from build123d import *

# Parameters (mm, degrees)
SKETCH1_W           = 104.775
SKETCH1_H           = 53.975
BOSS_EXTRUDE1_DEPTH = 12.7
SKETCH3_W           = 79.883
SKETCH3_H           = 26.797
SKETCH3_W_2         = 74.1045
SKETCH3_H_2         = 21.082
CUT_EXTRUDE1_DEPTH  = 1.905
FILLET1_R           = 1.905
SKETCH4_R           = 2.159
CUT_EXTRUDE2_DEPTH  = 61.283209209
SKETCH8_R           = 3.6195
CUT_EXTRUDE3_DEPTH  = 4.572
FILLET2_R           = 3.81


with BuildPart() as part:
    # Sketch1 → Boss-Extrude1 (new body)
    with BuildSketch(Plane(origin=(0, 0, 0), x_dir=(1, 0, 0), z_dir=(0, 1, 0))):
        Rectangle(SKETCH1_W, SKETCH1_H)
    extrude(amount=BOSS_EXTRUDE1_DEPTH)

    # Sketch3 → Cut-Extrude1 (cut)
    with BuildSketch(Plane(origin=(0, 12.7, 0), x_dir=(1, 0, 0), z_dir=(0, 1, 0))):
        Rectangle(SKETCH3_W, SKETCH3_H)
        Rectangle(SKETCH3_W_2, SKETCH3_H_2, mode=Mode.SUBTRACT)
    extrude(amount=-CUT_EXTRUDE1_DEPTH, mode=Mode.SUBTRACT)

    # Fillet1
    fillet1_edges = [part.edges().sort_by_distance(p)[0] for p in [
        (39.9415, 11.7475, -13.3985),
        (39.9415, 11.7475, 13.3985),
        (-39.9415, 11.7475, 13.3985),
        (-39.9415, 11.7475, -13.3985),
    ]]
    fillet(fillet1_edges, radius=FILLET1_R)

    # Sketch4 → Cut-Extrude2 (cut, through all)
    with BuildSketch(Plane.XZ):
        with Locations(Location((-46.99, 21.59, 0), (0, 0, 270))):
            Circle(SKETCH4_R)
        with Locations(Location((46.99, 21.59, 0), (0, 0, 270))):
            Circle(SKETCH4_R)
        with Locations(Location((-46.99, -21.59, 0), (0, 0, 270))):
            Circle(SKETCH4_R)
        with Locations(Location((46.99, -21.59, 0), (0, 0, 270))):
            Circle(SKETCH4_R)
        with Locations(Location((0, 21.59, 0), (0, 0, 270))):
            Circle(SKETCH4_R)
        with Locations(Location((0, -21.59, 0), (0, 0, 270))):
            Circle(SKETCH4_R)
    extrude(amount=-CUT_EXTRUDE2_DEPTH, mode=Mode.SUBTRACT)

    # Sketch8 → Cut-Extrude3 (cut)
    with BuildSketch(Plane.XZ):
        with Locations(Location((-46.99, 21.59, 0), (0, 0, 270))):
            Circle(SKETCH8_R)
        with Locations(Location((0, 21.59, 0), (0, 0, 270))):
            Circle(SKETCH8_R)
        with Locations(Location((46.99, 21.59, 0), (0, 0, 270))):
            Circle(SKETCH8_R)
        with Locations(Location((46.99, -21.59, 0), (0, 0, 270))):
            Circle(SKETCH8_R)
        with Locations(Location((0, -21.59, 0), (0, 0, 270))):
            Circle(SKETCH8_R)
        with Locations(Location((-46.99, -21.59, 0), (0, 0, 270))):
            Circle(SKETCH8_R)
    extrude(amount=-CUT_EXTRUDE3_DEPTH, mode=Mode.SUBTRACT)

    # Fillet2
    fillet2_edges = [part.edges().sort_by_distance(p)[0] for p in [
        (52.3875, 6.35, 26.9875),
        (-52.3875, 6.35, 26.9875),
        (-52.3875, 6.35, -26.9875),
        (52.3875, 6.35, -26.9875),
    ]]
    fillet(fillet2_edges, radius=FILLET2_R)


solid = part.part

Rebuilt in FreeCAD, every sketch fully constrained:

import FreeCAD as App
import Part
import Sketcher

V = App.Vector
Q = App.Units.Quantity


def edges_at(feature, points):
    """Names of the edges that pass closest to the given points."""
    edges = feature.Shape.Edges
    near = lambda p: min(range(len(edges)), key=lambda i: edges[i].distToShape(Part.Vertex(*p))[0])
    return sorted({f"Edge{near(p) + 1}" for p in points})

doc = App.newDocument("Part")
body = doc.addObject("PartDesign::Body", "Body")

# Sketch on XZ plane
sketch1 = body.newObject("Sketcher::SketchObject", "Sketch")
sketch1.AttachmentSupport = (doc.getObject("XZ_Plane"), [""])
sketch1.MapMode = "FlatFace"
sketch1.addGeometry(Part.LineSegment(V(-52, -27, 0), V(-52, 27, 0)), False)
sketch1.addGeometry(Part.LineSegment(V(-52, 27, 0), V(52, 27, 0)), False)
sketch1.addGeometry(Part.LineSegment(V(52, 27, 0), V(52, -27, 0)), False)
sketch1.addGeometry(Part.LineSegment(V(52, -27, 0), V(-52, -27, 0)), False)
sketch1.addConstraint(Sketcher.Constraint("Coincident", 0, 2, 1, 1))
sketch1.addConstraint(Sketcher.Constraint("Coincident", 1, 2, 2, 1))
sketch1.addConstraint(Sketcher.Constraint("Coincident", 2, 2, 3, 1))
sketch1.addConstraint(Sketcher.Constraint("Coincident", 3, 2, 0, 1))
sketch1.addConstraint(Sketcher.Constraint("Vertical", 0))
sketch1.addConstraint(Sketcher.Constraint("Horizontal", 1))
sketch1.addConstraint(Sketcher.Constraint("Vertical", 2))
sketch1.addConstraint(Sketcher.Constraint("Horizontal", 3))
sketch1.addConstraint(Sketcher.Constraint("Symmetric", 0, 2, 2, 2, -1, 1))
sketch1.addConstraint(Sketcher.Constraint("DistanceX", 1, 1, 1, 2, Q("4.125 in")))
sketch1.addConstraint(Sketcher.Constraint("DistanceY", 0, 1, 0, 2, Q("2.125 in")))
pad1 = body.newObject("PartDesign::Pad", "Pad")
pad1.Profile = sketch1
pad1.Length = Q("0.5 in")
pad1.Reversed = True

# Sketch on XZ plane
sketch2 = body.newObject("Sketcher::SketchObject", "Sketch001")
sketch2.AttachmentSupport = (doc.getObject("XZ_Plane"), [""])
sketch2.MapMode = "FlatFace"
sketch2.AttachmentOffset = App.Placement(V(0, 0, -0.5 * 25.4), App.Rotation())
sketch2.addGeometry(Part.LineSegment(V(-40, -13, 0), V(-40, 13, 0)), False)
sketch2.addGeometry(Part.LineSegment(V(-40, 13, 0), V(40, 13, 0)), False)
sketch2.addGeometry(Part.LineSegment(V(40, 13, 0), V(40, -13, 0)), False)
sketch2.addGeometry(Part.LineSegment(V(40, -13, 0), V(-40, -13, 0)), False)
sketch2.addGeometry(Part.LineSegment(V(37, 11, 0), V(-37, 11, 0)), False)
sketch2.addGeometry(Part.LineSegment(V(-37, 11, 0), V(-37, -11, 0)), False)
sketch2.addGeometry(Part.LineSegment(V(-37, -11, 0), V(37, -11, 0)), False)
sketch2.addGeometry(Part.LineSegment(V(37, -11, 0), V(37, 11, 0)), False)
sketch2.addConstraint(Sketcher.Constraint("Coincident", 0, 2, 1, 1))
sketch2.addConstraint(Sketcher.Constraint("Coincident", 1, 2, 2, 1))
sketch2.addConstraint(Sketcher.Constraint("Coincident", 2, 2, 3, 1))
sketch2.addConstraint(Sketcher.Constraint("Coincident", 3, 2, 0, 1))
sketch2.addConstraint(Sketcher.Constraint("Coincident", 4, 2, 5, 1))
sketch2.addConstraint(Sketcher.Constraint("Coincident", 5, 2, 6, 1))
sketch2.addConstraint(Sketcher.Constraint("Coincident", 6, 2, 7, 1))
sketch2.addConstraint(Sketcher.Constraint("Coincident", 7, 2, 4, 1))
sketch2.addConstraint(Sketcher.Constraint("Vertical", 0))
sketch2.addConstraint(Sketcher.Constraint("Horizontal", 1))
sketch2.addConstraint(Sketcher.Constraint("Vertical", 2))
sketch2.addConstraint(Sketcher.Constraint("Horizontal", 3))
sketch2.addConstraint(Sketcher.Constraint("Horizontal", 4))
sketch2.addConstraint(Sketcher.Constraint("Vertical", 5))
sketch2.addConstraint(Sketcher.Constraint("Horizontal", 6))
sketch2.addConstraint(Sketcher.Constraint("Vertical", 7))
sketch2.addConstraint(Sketcher.Constraint("Symmetric", 0, 2, 2, 2, -1, 1))
sketch2.addConstraint(Sketcher.Constraint("Symmetric", 4, 2, 6, 2, -1, 1))
sketch2.addConstraint(Sketcher.Constraint("DistanceY", 5, 2, 5, 1, Q("0.83 in")))
sketch2.addConstraint(Sketcher.Constraint("DistanceX", 1, 1, 1, 2, Q("3.145 in")))
sketch2.addConstraint(Sketcher.Constraint("DistanceY", 0, 1, 0, 2, Q("1.055 in")))
sketch2.addConstraint(Sketcher.Constraint("DistanceX", 4, 2, 4, 1, Q("2.9175 in")))
pocket1 = body.newObject("PartDesign::Pocket", "Pocket")
pocket1.Profile = sketch2
pocket1.Length = Q("0.075 in")
pocket1.Reversed = True
doc.recompute()

fillet = body.newObject("PartDesign::Fillet", "Fillet")
fillet.Base = (pocket1, edges_at(pocket1, [
    (39.941, 11.748, -13.399),
    (39.941, 11.748, 13.399),
    (-39.941, 11.748, 13.399),
    (-39.941, 11.748, -13.399),
]))
fillet.Radius = Q("0.075 in")

# Sketch on XZ plane
sketch3 = body.newObject("Sketcher::SketchObject", "Sketch002")
sketch3.AttachmentSupport = (doc.getObject("XZ_Plane"), [""])
sketch3.MapMode = "FlatFace"
sketch3.addGeometry(Part.Circle(V(-47, 21.6, 0), V(0, 0, 1), 2.2), False)
sketch3.addGeometry(Part.Circle(V(47, 21.6, 0), V(0, 0, 1), 2.2), False)
sketch3.addGeometry(Part.Circle(V(-47, -21.6, 0), V(0, 0, 1), 2.2), False)
sketch3.addGeometry(Part.Circle(V(47, -21.6, 0), V(0, 0, 1), 2.2), False)
sketch3.addGeometry(Part.Circle(V(0, 21.6, 0), V(0, 0, 1), 2.2), False)
sketch3.addGeometry(Part.Circle(V(0, -21.6, 0), V(0, 0, 1), 2.2), False)
sketch3.addConstraint(Sketcher.Constraint("Equal", 0, 1))
sketch3.addConstraint(Sketcher.Constraint("Equal", 1, 2))
sketch3.addConstraint(Sketcher.Constraint("Equal", 2, 3))
sketch3.addConstraint(Sketcher.Constraint("Equal", 3, 4))
sketch3.addConstraint(Sketcher.Constraint("Equal", 4, 5))
sketch3.addConstraint(Sketcher.Constraint("Symmetric", 1, 3, 2, 3, -1, 1))
sketch3.addConstraint(Sketcher.Constraint("Symmetric", 0, 3, 3, 3, -1, 1))
sketch3.addConstraint(Sketcher.Constraint("Symmetric", 4, 3, 5, 3, -1, 1))
sketch3.addConstraint(Sketcher.Constraint("Symmetric", 0, 3, 1, 3, -2))
sketch3.addConstraint(Sketcher.Constraint("PointOnObject", 4, 3, -2))
sketch3.addConstraint(Sketcher.Constraint("Horizontal", 1, 3, 4, 3))
sketch3.addConstraint(Sketcher.Constraint("Diameter", 0, Q("0.17 in")))
sketch3.addConstraint(Sketcher.Constraint("DistanceX", 0, 3, 1, 3, Q("3.7 in")))
sketch3.addConstraint(Sketcher.Constraint("DistanceY", 2, 3, 0, 3, Q("1.7 in")))
pocket2 = body.newObject("PartDesign::Pocket", "Pocket001")
pocket2.Profile = sketch3
pocket2.Type = "ThroughAll"

# Sketch on XZ plane
sketch4 = body.newObject("Sketcher::SketchObject", "Sketch003")
sketch4.AttachmentSupport = (doc.getObject("XZ_Plane"), [""])
sketch4.MapMode = "FlatFace"
sketch4.addGeometry(Part.Circle(V(-47, 21.6, 0), V(0, 0, 1), 3.6), False)
sketch4.addGeometry(Part.Circle(V(0, 21.6, 0), V(0, 0, 1), 3.6), False)
sketch4.addGeometry(Part.Circle(V(47, 21.6, 0), V(0, 0, 1), 3.6), False)
sketch4.addGeometry(Part.Circle(V(47, -21.6, 0), V(0, 0, 1), 3.6), False)
sketch4.addGeometry(Part.Circle(V(0, -21.6, 0), V(0, 0, 1), 3.6), False)
sketch4.addGeometry(Part.Circle(V(-47, -21.6, 0), V(0, 0, 1), 3.6), False)
sketch4.addConstraint(Sketcher.Constraint("Equal", 0, 1))
sketch4.addConstraint(Sketcher.Constraint("Equal", 1, 2))
sketch4.addConstraint(Sketcher.Constraint("Equal", 2, 3))
sketch4.addConstraint(Sketcher.Constraint("Equal", 3, 4))
sketch4.addConstraint(Sketcher.Constraint("Equal", 4, 5))
sketch4.addConstraint(Sketcher.Constraint("Symmetric", 0, 3, 3, 3, -1, 1))
sketch4.addConstraint(Sketcher.Constraint("Symmetric", 1, 3, 4, 3, -1, 1))
sketch4.addConstraint(Sketcher.Constraint("Symmetric", 2, 3, 5, 3, -1, 1))
sketch4.addConstraint(Sketcher.Constraint("Symmetric", 0, 3, 2, 3, -2))
sketch4.addConstraint(Sketcher.Constraint("PointOnObject", 1, 3, -2))
sketch4.addConstraint(Sketcher.Constraint("Horizontal", 0, 3, 1, 3))
sketch4.addConstraint(Sketcher.Constraint("Diameter", 0, Q("0.285 in")))
sketch4.addConstraint(Sketcher.Constraint("DistanceX", 0, 3, 2, 3, Q("3.7 in")))
sketch4.addConstraint(Sketcher.Constraint("DistanceY", 3, 3, 2, 3, Q("1.7 in")))
pocket3 = body.newObject("PartDesign::Pocket", "Pocket002")
pocket3.Profile = sketch4
pocket3.Length = Q("0.18 in")
doc.recompute()

fillet2 = body.newObject("PartDesign::Fillet", "Fillet001")
fillet2.Base = (pocket3, edges_at(pocket3, [
    (52.388, 6.35, 26.988),
    (-52.388, 6.35, 26.988),
    (-52.388, 6.35, -26.988),
    (52.388, 6.35, -26.988),
]))
fillet2.Radius = Q("0.15 in")

doc.recompute()
